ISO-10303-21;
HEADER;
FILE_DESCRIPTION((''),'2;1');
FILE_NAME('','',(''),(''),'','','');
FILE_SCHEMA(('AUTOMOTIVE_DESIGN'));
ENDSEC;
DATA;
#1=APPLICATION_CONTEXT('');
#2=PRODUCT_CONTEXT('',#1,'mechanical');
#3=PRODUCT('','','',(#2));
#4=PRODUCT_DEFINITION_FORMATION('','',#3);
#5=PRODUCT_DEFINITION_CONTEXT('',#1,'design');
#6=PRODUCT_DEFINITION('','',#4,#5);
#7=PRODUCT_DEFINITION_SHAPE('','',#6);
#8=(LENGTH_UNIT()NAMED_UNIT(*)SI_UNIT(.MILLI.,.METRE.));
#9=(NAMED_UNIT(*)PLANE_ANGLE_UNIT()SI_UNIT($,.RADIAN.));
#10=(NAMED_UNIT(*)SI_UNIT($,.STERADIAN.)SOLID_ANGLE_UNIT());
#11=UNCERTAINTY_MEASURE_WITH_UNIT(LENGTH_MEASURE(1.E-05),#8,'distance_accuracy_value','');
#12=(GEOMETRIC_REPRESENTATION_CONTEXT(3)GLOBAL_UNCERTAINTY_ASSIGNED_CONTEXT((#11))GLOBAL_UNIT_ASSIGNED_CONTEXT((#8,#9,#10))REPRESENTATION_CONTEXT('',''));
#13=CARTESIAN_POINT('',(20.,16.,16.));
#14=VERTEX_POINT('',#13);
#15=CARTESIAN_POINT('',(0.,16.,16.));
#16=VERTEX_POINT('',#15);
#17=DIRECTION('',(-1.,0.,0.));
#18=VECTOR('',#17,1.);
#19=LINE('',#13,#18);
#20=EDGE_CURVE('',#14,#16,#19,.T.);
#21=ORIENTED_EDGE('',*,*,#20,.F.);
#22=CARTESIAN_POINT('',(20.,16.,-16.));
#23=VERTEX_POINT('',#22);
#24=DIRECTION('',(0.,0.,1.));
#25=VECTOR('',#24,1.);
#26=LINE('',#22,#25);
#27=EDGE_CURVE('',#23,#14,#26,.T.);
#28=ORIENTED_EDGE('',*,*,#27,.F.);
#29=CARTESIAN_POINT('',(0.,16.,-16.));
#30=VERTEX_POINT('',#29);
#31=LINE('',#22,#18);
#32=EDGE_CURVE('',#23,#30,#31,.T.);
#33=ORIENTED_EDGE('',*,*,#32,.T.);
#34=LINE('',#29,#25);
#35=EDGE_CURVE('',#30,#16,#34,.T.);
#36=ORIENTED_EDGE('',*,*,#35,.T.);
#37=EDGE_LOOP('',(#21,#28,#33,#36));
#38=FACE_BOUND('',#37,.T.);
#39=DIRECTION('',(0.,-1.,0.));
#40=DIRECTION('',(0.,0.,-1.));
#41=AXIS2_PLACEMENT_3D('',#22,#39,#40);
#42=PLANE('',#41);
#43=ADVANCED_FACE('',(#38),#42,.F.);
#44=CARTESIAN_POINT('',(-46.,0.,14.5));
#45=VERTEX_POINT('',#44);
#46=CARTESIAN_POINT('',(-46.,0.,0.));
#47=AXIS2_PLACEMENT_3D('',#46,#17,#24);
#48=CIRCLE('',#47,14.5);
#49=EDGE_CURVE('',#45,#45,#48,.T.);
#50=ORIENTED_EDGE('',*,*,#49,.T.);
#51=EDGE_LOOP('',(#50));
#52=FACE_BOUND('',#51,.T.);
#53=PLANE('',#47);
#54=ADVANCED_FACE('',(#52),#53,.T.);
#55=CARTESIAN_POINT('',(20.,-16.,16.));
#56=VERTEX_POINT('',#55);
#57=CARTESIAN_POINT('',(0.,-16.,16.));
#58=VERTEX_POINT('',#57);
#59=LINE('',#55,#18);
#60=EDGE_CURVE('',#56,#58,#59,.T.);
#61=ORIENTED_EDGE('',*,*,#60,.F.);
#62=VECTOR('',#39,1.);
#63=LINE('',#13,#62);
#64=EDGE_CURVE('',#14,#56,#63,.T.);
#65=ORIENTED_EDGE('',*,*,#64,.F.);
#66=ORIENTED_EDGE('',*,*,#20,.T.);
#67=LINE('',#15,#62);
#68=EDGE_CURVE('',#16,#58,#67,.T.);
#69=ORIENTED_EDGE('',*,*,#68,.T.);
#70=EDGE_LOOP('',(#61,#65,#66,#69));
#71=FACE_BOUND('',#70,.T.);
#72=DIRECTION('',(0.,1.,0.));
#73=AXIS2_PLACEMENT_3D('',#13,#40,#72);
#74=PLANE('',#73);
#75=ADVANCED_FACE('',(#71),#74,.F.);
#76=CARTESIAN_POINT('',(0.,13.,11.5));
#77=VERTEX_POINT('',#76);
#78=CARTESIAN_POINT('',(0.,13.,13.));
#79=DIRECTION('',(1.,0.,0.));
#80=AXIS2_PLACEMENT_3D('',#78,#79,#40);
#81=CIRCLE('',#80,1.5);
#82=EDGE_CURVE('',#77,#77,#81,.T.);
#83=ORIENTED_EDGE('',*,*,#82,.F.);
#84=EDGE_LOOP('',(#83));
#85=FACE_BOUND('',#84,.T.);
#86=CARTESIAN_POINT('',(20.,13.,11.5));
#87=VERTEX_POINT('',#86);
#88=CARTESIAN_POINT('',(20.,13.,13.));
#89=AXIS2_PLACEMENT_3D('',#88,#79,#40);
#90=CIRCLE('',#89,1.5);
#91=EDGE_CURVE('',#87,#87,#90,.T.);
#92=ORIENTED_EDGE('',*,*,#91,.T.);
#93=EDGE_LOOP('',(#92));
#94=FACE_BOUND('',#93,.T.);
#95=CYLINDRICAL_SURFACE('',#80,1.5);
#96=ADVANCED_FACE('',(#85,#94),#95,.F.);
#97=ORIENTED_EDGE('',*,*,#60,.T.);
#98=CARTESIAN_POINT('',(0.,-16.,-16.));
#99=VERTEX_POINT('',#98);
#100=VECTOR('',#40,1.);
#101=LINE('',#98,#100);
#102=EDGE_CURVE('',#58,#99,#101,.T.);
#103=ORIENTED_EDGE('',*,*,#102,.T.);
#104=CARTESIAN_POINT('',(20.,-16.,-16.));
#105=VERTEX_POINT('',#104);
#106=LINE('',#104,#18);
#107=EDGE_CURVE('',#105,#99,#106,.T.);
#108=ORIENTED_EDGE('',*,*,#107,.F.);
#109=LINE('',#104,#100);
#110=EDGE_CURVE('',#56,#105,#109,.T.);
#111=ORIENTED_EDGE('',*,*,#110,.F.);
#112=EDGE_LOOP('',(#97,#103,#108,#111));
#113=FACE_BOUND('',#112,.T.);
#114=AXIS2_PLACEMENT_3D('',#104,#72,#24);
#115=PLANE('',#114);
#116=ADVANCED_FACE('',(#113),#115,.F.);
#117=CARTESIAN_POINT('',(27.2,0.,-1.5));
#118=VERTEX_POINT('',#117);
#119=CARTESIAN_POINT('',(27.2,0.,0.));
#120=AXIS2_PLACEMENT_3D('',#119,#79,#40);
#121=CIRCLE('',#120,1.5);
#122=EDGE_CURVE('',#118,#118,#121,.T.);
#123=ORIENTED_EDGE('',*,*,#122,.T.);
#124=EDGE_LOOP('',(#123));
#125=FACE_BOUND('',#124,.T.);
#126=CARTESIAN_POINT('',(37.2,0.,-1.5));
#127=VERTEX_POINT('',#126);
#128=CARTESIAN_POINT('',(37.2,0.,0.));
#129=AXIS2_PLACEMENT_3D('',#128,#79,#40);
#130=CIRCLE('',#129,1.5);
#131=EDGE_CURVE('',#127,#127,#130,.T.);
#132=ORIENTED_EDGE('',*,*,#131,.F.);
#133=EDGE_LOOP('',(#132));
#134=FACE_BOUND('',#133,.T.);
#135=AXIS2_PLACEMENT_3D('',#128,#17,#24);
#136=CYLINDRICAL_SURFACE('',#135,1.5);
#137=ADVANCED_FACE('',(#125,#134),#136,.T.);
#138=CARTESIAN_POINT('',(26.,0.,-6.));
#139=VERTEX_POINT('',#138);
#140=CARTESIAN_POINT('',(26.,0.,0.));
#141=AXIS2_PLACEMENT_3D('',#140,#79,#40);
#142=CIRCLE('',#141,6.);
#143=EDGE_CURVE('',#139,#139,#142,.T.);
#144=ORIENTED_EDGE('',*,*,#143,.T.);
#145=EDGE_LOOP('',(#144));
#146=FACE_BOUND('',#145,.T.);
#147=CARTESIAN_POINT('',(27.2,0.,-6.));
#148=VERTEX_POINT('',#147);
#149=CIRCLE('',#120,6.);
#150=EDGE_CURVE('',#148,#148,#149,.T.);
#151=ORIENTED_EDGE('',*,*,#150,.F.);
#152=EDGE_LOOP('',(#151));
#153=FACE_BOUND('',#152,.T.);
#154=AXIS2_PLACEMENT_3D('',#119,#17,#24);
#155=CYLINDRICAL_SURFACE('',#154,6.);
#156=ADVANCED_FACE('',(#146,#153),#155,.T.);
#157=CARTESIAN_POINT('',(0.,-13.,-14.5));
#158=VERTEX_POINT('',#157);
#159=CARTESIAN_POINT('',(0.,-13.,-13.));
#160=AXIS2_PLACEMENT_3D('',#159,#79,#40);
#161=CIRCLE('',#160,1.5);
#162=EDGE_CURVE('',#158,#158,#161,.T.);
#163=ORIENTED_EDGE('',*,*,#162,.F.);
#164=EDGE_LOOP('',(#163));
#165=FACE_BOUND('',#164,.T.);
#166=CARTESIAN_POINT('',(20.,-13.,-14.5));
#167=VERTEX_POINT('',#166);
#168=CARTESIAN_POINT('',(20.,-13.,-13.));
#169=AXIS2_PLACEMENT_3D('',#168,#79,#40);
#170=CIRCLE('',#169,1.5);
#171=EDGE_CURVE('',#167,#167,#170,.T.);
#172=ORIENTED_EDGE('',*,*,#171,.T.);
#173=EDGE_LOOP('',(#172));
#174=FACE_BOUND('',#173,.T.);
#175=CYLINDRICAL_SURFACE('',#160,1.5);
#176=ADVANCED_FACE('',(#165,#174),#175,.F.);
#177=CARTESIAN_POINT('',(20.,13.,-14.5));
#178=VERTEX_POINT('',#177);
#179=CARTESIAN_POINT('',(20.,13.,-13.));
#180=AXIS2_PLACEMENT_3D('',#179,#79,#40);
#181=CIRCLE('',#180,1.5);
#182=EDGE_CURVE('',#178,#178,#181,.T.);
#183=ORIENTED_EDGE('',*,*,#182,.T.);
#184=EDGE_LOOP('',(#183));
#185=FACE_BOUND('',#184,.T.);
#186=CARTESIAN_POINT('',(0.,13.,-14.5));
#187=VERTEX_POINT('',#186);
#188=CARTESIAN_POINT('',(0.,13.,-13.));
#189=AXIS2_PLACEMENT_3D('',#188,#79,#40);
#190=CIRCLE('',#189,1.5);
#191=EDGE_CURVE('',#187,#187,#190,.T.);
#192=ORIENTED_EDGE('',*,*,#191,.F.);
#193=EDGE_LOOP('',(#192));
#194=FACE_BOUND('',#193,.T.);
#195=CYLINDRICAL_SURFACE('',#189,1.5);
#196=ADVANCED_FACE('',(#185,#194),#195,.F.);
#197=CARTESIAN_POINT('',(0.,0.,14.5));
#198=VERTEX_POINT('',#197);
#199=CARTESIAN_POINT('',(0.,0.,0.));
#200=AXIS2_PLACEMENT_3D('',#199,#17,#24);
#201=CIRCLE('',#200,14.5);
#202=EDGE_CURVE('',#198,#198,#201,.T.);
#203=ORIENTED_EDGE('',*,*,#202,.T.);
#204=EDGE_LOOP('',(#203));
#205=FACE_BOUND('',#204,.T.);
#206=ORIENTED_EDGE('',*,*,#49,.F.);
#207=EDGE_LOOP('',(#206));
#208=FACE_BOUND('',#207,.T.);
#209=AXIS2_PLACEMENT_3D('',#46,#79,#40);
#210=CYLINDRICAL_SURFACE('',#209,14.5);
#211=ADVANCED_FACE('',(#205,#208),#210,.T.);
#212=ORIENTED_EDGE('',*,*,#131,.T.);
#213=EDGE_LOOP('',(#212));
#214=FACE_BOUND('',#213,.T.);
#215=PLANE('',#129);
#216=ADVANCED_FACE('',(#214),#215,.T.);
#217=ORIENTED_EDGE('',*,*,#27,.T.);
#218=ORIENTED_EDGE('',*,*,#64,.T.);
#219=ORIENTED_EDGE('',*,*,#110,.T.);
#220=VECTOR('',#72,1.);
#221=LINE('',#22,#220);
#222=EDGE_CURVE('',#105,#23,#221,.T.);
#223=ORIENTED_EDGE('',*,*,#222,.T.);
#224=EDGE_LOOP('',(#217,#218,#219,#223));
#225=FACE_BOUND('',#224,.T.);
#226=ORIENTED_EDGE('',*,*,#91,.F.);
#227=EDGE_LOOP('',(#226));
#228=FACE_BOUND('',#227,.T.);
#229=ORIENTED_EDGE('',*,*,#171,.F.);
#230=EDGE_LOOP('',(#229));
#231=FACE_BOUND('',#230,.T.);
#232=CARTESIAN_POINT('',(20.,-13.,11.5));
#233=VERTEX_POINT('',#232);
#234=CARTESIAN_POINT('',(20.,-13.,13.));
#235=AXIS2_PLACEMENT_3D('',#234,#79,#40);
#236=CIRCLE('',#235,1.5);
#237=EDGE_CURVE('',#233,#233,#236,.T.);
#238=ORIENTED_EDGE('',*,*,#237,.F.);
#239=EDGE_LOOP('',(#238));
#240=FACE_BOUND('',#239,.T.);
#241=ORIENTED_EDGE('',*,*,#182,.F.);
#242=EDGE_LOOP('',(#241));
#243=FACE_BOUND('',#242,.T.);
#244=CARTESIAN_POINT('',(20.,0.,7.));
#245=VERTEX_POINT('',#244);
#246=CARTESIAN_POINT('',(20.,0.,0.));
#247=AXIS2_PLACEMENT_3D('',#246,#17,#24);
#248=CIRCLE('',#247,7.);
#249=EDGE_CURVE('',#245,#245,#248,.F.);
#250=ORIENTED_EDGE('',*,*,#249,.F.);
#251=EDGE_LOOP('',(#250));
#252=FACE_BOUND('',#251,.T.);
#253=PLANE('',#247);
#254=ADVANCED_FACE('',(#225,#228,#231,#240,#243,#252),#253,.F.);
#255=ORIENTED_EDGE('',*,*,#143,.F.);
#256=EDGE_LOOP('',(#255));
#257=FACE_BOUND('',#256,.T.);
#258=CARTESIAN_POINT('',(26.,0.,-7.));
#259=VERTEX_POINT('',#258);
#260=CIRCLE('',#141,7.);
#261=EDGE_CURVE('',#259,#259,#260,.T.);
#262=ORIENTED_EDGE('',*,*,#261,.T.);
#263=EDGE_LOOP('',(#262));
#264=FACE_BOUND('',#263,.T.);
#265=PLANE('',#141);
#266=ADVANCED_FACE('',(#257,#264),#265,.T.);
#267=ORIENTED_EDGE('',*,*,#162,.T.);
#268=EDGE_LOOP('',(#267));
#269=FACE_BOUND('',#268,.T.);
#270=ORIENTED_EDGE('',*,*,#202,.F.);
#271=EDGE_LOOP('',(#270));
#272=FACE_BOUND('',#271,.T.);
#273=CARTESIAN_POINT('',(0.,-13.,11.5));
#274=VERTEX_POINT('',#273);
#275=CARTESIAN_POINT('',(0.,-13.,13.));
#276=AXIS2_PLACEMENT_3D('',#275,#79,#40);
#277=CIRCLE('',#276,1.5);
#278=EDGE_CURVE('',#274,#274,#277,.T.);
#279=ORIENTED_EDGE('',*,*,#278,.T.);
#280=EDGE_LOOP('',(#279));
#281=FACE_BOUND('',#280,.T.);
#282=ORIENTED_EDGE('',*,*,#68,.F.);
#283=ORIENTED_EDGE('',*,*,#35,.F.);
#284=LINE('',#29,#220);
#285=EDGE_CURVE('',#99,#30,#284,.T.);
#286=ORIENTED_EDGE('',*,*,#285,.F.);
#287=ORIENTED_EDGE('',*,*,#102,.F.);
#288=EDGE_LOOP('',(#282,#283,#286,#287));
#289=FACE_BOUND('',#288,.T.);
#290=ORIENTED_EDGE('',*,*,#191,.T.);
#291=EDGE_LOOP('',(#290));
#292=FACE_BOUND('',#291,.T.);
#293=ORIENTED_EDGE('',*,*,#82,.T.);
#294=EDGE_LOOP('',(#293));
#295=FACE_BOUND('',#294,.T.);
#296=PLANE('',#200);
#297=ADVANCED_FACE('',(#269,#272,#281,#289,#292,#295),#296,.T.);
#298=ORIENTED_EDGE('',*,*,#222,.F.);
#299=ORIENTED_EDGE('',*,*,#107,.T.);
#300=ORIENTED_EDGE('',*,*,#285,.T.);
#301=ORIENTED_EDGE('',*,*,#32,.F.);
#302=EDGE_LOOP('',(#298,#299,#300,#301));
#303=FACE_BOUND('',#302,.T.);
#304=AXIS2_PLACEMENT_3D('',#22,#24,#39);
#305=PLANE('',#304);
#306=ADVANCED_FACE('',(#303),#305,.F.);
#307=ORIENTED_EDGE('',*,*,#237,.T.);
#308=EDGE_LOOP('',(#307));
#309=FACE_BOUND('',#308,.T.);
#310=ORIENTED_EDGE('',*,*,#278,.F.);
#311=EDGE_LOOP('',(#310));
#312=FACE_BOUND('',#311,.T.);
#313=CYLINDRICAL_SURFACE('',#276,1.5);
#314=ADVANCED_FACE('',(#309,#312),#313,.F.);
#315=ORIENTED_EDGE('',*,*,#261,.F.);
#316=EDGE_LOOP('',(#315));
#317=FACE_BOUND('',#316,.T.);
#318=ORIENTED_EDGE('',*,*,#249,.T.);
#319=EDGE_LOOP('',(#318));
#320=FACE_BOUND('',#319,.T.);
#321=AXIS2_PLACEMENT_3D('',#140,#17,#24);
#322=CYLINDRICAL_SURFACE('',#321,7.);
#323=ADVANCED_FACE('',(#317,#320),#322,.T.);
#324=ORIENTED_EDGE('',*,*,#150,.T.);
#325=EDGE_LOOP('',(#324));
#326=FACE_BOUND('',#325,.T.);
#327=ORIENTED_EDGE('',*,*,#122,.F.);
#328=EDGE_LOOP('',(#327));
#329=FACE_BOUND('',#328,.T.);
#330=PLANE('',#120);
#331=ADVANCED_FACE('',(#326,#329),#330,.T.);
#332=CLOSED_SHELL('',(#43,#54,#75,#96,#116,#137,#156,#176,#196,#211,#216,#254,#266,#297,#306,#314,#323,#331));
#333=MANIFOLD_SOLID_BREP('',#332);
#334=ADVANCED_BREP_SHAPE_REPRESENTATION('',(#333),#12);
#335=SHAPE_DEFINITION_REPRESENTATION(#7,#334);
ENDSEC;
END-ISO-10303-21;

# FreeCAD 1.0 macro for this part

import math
import FreeCAD as App
import Part
import Sketcher
from FreeCAD import Vector


def add_polygon(sketch, points):
    """Adds a closed chain of lines whose ends are joined by coincident constraints."""
    first, n = sketch.GeometryCount, len(points)
    for a, b in zip(points, points[1:] + points[:1]):
        sketch.addGeometry(Part.LineSegment(App.Vector(*a, 0), App.Vector(*b, 0)), False)
    for i in range(n):
        sketch.addConstraint(Sketcher.Constraint("Coincident", first + i, 2, first + (i + 1) % n, 1))

doc = App.newDocument("Part")
body = doc.addObject("PartDesign::Body", "Body")

# Sketch on YZ plane
sketch1 = doc.addObject("Sketcher::SketchObject", "Sketch")
body.addObject(sketch1)
sketch1.AttachmentSupport = (doc.YZ_Plane, [""])
sketch1.MapMode = "FlatFace"
add_polygon(sketch1, [(16, 16), (-16, 16), (-16, -16), (16, -16)])  # lines 0-3
sketch1.addConstraint(Sketcher.Constraint("Horizontal", 0))
sketch1.addConstraint(Sketcher.Constraint("Vertical", 1))
sketch1.addConstraint(Sketcher.Constraint("Horizontal", 2))
sketch1.addConstraint(Sketcher.Constraint("Vertical", 3))
sketch1.addConstraint(Sketcher.Constraint("Symmetric", 0, 2, 2, 2, -1, 1))
sketch1.addConstraint(Sketcher.Constraint("Equal", 2, 1))
sketch1.addConstraint(Sketcher.Constraint("DistanceX", 0, 2, 0, 1, 32.0))
pad1 = doc.addObject("PartDesign::Pad", "Pad")
body.addObject(pad1)
pad1.Profile = sketch1
pad1.Length = 20

# Sketch on YZ plane
sketch2 = doc.addObject("Sketcher::SketchObject", "Sketch001")
body.addObject(sketch2)
sketch2.AttachmentSupport = (doc.YZ_Plane, [""])
sketch2.MapMode = "FlatFace"
sketch2.addGeometry(Part.Circle(Vector(0, 0, 0), Vector(0, 0, 1), 14), False)
sketch2.addConstraint(Sketcher.Constraint("Coincident", 0, 3, -1, 1))
sketch2.addConstraint(Sketcher.Constraint("Diameter", 0, 29.0))
pad2 = doc.addObject("PartDesign::Pad", "Pad001")
body.addObject(pad2)
pad2.Profile = sketch2
pad2.Length = 46
pad2.Reversed = True

# Sketch on YZ plane
sketch3 = doc.addObject("Sketcher::SketchObject", "Sketch002")
body.addObject(sketch3)
sketch3.AttachmentSupport = (doc.YZ_Plane, [""])
sketch3.MapMode = "FlatFace"
sketch3.AttachmentOffset = App.Placement(Vector(0, 0, 20), App.Rotation())
sketch3.addGeometry(Part.Circle(Vector(0, 0, 0), Vector(0, 0, 1), 7), False)
sketch3.addConstraint(Sketcher.Constraint("Coincident", 0, 3, -1, 1))
sketch3.addConstraint(Sketcher.Constraint("Diameter", 0, 14.0))
pad3 = doc.addObject("PartDesign::Pad", "Pad002")
body.addObject(pad3)
pad3.Profile = sketch3
pad3.Length = 6

# Sketch on YZ plane
sketch4 = doc.addObject("Sketcher::SketchObject", "Sketch003")
body.addObject(sketch4)
sketch4.AttachmentSupport = (doc.YZ_Plane, [""])
sketch4.MapMode = "FlatFace"
sketch4.AttachmentOffset = App.Placement(Vector(0, 0, 26), App.Rotation())
sketch4.addGeometry(Part.Circle(Vector(0, 0, 0), Vector(0, 0, 1), 6), False)
sketch4.addConstraint(Sketcher.Constraint("Coincident", 0, 3, -1, 1))
sketch4.addConstraint(Sketcher.Constraint("Diameter", 0, 12.0))
pad4 = doc.addObject("PartDesign::Pad", "Pad003")
body.addObject(pad4)
pad4.Profile = sketch4
pad4.Length = 1.2

# Sketch on YZ plane
sketch5 = doc.addObject("Sketcher::SketchObject", "Sketch004")
body.addObject(sketch5)
sketch5.AttachmentSupport = (doc.YZ_Plane, [""])
sketch5.MapMode = "FlatFace"
sketch5.AttachmentOffset = App.Placement(Vector(0, 0, 27.2), App.Rotation())
sketch5.addGeometry(Part.Circle(Vector(0, 0, 0), Vector(0, 0, 1), 1.5), False)
sketch5.addConstraint(Sketcher.Constraint("Coincident", 0, 3, -1, 1))
sketch5.addConstraint(Sketcher.Constraint("Diameter", 0, 3.0))
pad5 = doc.addObject("PartDesign::Pad", "Pad004")
body.addObject(pad5)
pad5.Profile = sketch5
pad5.Length = 10

# Sketch on YZ plane
sketch6 = doc.addObject("Sketcher::SketchObject", "Sketch005")
body.addObject(sketch6)
sketch6.AttachmentSupport = (doc.YZ_Plane, [""])
sketch6.MapMode = "FlatFace"
sketch6.AttachmentOffset = App.Placement(Vector(0, 0, 20), App.Rotation())
sketch6.addGeometry(Part.ArcOfCircle(Part.Circle(Vector(-13, 13, 0), Vector(0, 0, 1), 1.5), math.radians(90), math.radians(180)), False)
sketch6.addGeometry(Part.ArcOfCircle(Part.Circle(Vector(-13, 13, 0), Vector(0, 0, 1), 1.5), math.radians(180), math.radians(270)), False)
sketch6.addGeometry(Part.ArcOfCircle(Part.Circle(Vector(-13, 13, 0), Vector(0, 0, 1), 1.5), math.radians(-90), math.radians(90)), False)
sketch6.addGeometry(Part.ArcOfCircle(Part.Circle(Vector(-13, -13, 0), Vector(0, 0, 1), 1.5), math.radians(-90), math.radians(180)), False)
sketch6.addGeometry(Part.ArcOfCircle(Part.Circle(Vector(-13, -13, 0), Vector(0, 0, 1), 1.5), math.radians(180), math.radians(270)), False)
sketch6.addGeometry(Part.ArcOfCircle(Part.Circle(Vector(13, -13, 0), Vector(0, 0, 1), 1.5), math.radians(-90), math.radians(0)), False)
sketch6.addGeometry(Part.ArcOfCircle(Part.Circle(Vector(13, -13, 0), Vector(0, 0, 1), 1.5), math.radians(0), math.radians(270)), False)
sketch6.addGeometry(Part.ArcOfCircle(Part.Circle(Vector(13, 13, 0), Vector(0, 0, 1), 1.5), math.radians(-90), math.radians(0)), False)
sketch6.addGeometry(Part.ArcOfCircle(Part.Circle(Vector(13, 13, 0), Vector(0, 0, 1), 1.5), math.radians(0), math.radians(90)), False)
sketch6.addGeometry(Part.ArcOfCircle(Part.Circle(Vector(13, 13, 0), Vector(0, 0, 1), 1.5), math.radians(90), math.radians(270)), False)
sketch6.addConstraint(Sketcher.Constraint("Tangent", 0, 2, 1, 1))
sketch6.addConstraint(Sketcher.Constraint("Tangent", 1, 2, 2, 1))
sketch6.addConstraint(Sketcher.Constraint("Tangent", 2, 2, 0, 1))
sketch6.addConstraint(Sketcher.Constraint("Tangent", 3, 1, 4, 2))
sketch6.addConstraint(Sketcher.Constraint("Coincident", 4, 1, 3, 2))
sketch6.addConstraint(Sketcher.Constraint("Tangent", 5, 1, 6, 2))
sketch6.addConstraint(Sketcher.Constraint("Coincident", 6, 1, 5, 2))
sketch6.addConstraint(Sketcher.Constraint("Tangent", 7, 2, 8, 1))
sketch6.addConstraint(Sketcher.Constraint("Tangent", 8, 2, 9, 1))
sketch6.addConstraint(Sketcher.Constraint("Tangent", 9, 2, 7, 1))
sketch6.addConstraint(Sketcher.Constraint("Equal", 2, 3))
sketch6.addConstraint(Sketcher.Constraint("Equal", 4, 5))
sketch6.addConstraint(Sketcher.Constraint("Equal", 6, 7))
sketch6.addConstraint(Sketcher.Constraint("Symmetric", 0, 3, 5, 3, -1, 1))
sketch6.addConstraint(Sketcher.Constraint("Symmetric", 3, 3, 7, 3, -1, 1))
sketch6.addConstraint(Sketcher.Constraint("Symmetric", 3, 3, 5, 3, -2))
sketch6.addConstraint(Sketcher.Constraint("Horizontal", 9, 3, 0, 2))
sketch6.addConstraint(Sketcher.Constraint("Horizontal", 6, 3, 4, 1))
sketch6.addConstraint(Sketcher.Constraint("Horizontal", 4, 1, 6, 1))
sketch6.addConstraint(Sketcher.Constraint("Horizontal", 0, 2, 7, 2))
sketch6.addConstraint(Sketcher.Constraint("Vertical", 4, 3, 1, 2))
sketch6.addConstraint(Sketcher.Constraint("Vertical", 1, 2, 2, 2))
sketch6.addConstraint(Sketcher.Constraint("Vertical", 2, 2, 3, 1))
sketch6.addConstraint(Sketcher.Constraint("Vertical", 9, 3, 5, 1))
sketch6.addConstraint(Sketcher.Constraint("Vertical", 5, 1, 8, 2))
sketch6.addConstraint(Sketcher.Constraint("Vertical", 8, 2, 9, 2))
sketch6.addConstraint(Sketcher.Constraint("Radius", 0, 1.5))
sketch6.addConstraint(Sketcher.Constraint("DistanceX", 0, 3, -1, 1, 13.0))
sketch6.addConstraint(Sketcher.Constraint("DistanceY", -1, 1, 0, 3, 13.0))
pocket1 = doc.addObject("PartDesign::Pocket", "Pocket")
body.addObject(pocket1)
pocket1.Profile = sketch6
pocket1.Length = 20

doc.recompute()
